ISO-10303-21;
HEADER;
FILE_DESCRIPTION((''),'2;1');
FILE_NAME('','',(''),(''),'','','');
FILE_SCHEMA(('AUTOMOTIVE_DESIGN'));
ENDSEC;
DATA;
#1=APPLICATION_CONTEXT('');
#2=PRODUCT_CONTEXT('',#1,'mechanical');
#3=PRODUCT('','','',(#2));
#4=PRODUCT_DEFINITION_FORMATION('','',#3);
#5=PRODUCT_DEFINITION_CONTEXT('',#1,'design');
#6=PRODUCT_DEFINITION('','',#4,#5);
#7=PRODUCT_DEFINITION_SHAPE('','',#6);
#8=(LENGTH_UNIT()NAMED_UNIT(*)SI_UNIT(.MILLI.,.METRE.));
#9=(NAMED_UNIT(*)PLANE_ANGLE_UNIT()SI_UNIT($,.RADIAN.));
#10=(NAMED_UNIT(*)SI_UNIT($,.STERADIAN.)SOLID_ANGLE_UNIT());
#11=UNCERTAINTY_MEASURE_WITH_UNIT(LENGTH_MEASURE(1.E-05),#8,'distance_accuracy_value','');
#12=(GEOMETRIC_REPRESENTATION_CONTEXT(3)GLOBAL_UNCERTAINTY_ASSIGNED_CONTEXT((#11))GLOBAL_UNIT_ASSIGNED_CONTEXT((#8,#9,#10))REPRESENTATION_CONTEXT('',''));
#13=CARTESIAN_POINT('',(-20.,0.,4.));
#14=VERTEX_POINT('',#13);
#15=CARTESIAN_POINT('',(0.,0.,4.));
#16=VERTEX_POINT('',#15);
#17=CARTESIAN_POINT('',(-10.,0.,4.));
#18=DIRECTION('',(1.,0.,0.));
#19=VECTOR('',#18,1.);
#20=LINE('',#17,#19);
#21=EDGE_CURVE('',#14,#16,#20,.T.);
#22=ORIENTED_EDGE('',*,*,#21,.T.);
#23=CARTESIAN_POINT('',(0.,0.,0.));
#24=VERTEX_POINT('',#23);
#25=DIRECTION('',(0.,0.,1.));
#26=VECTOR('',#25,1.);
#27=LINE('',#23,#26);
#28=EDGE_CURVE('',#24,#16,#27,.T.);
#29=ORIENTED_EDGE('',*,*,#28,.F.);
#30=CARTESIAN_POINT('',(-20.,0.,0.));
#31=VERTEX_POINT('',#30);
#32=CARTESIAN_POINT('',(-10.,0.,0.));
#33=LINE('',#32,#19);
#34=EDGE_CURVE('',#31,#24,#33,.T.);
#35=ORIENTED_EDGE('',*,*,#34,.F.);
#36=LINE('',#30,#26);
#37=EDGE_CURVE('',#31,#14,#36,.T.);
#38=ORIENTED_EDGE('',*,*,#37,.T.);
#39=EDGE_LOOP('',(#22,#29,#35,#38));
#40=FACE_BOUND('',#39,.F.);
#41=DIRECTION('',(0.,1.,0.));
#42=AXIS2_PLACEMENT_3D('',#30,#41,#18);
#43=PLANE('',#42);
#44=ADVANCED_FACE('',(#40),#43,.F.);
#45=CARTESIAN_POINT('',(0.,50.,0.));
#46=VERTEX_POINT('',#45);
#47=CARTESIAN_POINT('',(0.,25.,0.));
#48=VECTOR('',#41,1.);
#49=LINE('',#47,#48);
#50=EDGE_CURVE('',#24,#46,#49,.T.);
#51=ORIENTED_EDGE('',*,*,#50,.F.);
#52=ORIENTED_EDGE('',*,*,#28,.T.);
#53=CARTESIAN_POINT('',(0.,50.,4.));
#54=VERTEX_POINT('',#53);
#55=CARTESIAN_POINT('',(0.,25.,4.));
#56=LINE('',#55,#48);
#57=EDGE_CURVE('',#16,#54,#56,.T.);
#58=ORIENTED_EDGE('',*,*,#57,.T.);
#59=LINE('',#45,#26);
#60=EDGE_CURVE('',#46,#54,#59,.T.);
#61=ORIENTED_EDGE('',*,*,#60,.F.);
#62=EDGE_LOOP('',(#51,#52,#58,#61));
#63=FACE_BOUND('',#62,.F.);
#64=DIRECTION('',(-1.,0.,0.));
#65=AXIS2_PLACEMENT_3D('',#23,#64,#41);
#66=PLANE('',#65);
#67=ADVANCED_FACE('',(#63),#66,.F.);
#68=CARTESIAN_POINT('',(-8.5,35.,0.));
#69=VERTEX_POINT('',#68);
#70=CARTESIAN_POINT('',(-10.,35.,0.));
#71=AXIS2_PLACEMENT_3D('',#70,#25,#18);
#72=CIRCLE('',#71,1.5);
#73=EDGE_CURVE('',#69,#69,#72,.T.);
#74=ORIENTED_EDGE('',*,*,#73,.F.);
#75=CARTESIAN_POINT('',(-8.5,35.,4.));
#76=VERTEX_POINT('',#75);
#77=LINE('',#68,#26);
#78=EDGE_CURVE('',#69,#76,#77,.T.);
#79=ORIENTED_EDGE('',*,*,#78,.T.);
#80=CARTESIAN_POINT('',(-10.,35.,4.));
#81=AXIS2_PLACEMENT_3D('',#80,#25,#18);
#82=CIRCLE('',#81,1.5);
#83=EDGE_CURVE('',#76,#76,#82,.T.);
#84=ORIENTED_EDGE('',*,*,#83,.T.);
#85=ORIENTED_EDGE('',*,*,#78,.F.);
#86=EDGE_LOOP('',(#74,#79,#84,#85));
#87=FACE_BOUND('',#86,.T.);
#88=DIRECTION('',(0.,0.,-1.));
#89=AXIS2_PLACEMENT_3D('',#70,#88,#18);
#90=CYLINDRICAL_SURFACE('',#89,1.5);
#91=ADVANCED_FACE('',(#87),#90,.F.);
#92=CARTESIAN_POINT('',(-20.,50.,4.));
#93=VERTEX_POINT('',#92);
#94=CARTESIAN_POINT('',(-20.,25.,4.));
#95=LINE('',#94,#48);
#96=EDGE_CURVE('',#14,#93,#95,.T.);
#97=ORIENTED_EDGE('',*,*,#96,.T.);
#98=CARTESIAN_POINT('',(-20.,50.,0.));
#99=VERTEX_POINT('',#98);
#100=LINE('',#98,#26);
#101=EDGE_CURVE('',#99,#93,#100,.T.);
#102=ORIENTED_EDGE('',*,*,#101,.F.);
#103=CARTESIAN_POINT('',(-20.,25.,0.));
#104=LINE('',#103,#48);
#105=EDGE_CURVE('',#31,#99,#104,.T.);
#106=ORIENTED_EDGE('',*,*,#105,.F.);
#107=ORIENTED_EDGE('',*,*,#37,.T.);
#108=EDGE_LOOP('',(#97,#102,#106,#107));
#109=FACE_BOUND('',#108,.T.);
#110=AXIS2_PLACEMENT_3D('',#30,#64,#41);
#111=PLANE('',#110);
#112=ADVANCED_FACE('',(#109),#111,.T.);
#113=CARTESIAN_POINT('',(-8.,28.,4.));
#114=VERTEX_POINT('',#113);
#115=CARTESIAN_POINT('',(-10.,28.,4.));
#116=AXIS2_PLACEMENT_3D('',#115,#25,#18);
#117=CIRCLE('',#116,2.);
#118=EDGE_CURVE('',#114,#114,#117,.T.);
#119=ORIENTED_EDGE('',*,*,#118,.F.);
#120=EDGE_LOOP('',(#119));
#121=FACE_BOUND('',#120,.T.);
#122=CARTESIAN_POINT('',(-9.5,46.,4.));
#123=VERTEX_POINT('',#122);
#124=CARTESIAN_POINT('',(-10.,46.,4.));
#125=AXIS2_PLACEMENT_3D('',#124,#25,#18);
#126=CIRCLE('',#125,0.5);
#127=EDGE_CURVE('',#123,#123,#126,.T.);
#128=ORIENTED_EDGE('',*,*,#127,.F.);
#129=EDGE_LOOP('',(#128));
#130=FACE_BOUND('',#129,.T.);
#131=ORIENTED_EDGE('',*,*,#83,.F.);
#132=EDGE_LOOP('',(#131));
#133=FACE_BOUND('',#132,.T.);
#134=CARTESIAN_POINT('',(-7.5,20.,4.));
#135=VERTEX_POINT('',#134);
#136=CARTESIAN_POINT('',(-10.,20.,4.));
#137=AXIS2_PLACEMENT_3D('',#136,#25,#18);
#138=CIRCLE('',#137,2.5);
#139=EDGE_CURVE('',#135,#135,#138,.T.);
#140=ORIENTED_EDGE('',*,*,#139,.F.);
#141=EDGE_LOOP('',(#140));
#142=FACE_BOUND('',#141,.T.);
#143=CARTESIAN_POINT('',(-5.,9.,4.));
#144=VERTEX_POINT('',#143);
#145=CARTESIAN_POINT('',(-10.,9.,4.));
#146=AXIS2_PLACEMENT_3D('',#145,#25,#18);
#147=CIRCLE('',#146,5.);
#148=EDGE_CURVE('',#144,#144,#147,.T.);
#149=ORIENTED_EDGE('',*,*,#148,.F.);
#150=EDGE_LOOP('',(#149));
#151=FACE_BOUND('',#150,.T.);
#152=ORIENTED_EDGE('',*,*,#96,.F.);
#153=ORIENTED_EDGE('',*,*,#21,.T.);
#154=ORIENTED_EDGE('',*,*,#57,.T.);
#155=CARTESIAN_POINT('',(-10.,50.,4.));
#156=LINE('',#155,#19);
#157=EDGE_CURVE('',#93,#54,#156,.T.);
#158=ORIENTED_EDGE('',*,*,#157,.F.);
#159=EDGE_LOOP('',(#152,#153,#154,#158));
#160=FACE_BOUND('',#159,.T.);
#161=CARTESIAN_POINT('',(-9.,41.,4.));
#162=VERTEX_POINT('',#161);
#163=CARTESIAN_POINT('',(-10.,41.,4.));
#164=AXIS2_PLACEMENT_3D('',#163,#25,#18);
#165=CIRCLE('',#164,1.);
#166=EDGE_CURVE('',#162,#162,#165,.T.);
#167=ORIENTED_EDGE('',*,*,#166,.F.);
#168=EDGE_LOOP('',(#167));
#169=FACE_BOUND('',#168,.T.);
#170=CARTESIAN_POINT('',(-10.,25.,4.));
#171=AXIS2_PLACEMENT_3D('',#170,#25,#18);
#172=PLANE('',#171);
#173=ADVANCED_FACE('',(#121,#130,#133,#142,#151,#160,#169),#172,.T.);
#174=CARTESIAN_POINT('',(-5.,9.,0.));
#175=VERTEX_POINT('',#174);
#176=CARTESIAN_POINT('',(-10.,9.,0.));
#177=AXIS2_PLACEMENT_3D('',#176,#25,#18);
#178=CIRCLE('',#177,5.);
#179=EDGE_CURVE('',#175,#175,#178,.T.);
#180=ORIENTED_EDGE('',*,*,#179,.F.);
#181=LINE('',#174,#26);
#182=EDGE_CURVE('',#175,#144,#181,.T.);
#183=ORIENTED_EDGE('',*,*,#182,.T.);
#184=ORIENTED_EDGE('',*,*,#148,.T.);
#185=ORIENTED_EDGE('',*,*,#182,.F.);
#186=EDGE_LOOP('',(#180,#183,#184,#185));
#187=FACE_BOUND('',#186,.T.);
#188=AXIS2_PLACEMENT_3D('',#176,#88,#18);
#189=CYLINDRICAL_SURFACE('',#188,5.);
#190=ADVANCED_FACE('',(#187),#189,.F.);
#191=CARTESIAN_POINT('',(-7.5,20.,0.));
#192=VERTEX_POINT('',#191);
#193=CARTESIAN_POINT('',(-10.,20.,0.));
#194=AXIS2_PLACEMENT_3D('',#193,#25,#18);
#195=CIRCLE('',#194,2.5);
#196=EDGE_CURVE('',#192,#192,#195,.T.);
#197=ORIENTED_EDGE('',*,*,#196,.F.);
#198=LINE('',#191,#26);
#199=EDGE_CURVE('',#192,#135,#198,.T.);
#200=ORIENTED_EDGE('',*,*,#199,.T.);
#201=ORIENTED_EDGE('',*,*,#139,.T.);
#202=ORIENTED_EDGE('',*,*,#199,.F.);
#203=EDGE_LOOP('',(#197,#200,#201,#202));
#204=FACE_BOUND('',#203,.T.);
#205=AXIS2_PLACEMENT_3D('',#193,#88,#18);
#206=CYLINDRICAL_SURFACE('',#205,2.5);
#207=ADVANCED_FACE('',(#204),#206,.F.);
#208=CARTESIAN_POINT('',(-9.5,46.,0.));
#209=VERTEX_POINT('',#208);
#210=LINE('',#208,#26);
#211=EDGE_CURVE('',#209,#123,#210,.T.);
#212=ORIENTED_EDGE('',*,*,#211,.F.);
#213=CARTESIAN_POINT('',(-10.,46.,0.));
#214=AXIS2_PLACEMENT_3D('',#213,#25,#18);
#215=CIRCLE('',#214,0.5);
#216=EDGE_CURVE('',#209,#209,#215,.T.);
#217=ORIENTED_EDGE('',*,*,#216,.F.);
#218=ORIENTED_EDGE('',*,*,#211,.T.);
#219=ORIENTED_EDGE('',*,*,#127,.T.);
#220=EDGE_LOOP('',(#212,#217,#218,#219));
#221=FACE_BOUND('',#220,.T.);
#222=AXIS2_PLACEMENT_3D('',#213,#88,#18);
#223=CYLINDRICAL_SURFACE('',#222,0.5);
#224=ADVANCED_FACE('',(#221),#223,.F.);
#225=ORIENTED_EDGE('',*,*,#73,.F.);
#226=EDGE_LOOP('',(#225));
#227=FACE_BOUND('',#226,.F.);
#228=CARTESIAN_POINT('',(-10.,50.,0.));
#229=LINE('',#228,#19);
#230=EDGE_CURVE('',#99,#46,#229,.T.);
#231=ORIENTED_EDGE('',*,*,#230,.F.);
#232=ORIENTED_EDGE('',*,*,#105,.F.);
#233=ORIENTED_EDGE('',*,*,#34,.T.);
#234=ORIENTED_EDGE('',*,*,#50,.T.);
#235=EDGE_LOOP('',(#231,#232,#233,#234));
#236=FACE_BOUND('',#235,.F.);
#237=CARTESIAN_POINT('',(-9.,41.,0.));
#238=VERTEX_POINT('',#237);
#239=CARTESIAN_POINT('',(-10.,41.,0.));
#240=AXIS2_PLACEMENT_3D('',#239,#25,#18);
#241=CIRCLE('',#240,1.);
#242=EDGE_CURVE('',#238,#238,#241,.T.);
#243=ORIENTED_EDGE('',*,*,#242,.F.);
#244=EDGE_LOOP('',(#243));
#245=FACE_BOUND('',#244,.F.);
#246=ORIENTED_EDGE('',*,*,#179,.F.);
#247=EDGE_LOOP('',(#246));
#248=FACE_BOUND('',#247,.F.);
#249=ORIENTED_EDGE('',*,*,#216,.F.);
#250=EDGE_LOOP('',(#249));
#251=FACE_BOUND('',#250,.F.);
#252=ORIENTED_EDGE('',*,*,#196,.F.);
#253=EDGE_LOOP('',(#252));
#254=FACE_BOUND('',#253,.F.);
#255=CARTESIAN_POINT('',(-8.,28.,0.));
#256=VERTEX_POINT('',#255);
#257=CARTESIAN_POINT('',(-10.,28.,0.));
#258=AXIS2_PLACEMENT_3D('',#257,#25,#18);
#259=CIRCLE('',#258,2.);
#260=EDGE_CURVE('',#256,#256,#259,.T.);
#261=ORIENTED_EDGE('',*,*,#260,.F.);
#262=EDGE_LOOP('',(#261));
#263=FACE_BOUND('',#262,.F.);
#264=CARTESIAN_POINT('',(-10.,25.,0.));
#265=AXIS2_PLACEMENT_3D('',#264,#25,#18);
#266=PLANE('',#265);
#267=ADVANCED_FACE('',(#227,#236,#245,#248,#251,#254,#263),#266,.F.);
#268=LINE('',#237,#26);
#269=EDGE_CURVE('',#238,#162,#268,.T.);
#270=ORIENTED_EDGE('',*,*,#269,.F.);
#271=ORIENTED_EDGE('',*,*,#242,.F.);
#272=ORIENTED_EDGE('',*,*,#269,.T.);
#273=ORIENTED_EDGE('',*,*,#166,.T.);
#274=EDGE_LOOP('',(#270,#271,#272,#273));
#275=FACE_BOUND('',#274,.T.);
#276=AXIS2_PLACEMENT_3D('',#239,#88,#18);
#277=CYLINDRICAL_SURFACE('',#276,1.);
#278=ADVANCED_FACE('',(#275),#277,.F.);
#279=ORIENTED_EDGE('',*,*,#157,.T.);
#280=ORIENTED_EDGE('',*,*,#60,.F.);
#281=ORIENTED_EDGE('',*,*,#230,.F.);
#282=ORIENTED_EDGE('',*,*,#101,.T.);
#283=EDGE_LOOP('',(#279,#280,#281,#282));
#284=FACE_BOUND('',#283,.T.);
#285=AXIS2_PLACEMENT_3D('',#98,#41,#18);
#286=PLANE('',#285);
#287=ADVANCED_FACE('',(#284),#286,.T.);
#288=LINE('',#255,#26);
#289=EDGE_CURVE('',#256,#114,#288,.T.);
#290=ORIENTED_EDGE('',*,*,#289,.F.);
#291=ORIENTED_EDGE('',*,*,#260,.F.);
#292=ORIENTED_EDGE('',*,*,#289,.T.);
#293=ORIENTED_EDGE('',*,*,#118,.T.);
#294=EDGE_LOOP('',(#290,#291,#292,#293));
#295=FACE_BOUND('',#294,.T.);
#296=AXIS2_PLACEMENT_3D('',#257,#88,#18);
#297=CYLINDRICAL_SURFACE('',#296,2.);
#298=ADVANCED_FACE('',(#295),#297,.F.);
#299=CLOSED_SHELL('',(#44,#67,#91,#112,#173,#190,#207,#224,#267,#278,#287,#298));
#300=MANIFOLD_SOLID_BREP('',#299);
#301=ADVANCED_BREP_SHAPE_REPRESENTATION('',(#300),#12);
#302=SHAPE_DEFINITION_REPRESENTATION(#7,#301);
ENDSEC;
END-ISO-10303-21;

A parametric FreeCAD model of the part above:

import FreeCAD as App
import Part
import Sketcher
Q = App.Units.Quantity

doc = App.newDocument("Part")
body = doc.addObject("PartDesign::Body", "Body")

# Sketch on XY plane
sketch1 = body.newObject("Sketcher::SketchObject", "Sketch")
sketch1.AttachmentSupport = (doc.getObject("XY_Plane"), [""])
sketch1.MapMode = "FlatFace"
sketch1.addGeometry([
    Part.LineSegment(App.Vector(-20, 50, 0), App.Vector(-20, 0, 0)),  # 0
    Part.LineSegment(App.Vector(-20, 0, 0), App.Vector(0, 0, 0)),  # 1
    Part.LineSegment(App.Vector(0, 0, 0), App.Vector(0, 50, 0)),  # 2
    Part.LineSegment(App.Vector(0, 50, 0), App.Vector(-20, 50, 0)),  # 3
    Part.Circle(App.Vector(-10, 9, 0), App.Vector(0, 0, 1), 5),  # 4
    Part.Circle(App.Vector(-10, 20, 0), App.Vector(0, 0, 1), 2.5),  # 5
    Part.Circle(App.Vector(-10, 28, 0), App.Vector(0, 0, 1), 2),  # 6
    Part.Circle(App.Vector(-10, 35, 0), App.Vector(0, 0, 1), 1.5),  # 7
    Part.Circle(App.Vector(-10, 41, 0), App.Vector(0, 0, 1), 1),  # 8
    Part.Circle(App.Vector(-10, 46, 0), App.Vector(0, 0, 1), 0.5),  # 9
], False)
sketch1.addConstraint([
    Sketcher.Constraint("Coincident", 0, 2, 1, 1),
    Sketcher.Constraint("Coincident", 1, 2, 2, 1),
    Sketcher.Constraint("Coincident", 2, 2, 3, 1),
    Sketcher.Constraint("Coincident", 3, 2, 0, 1),
    Sketcher.Constraint("Vertical", 0),
    Sketcher.Constraint("Horizontal", 1),
    Sketcher.Constraint("Vertical", 2),
    Sketcher.Constraint("Horizontal", 3),
    Sketcher.Constraint("Coincident", 1, 2, -1, 1),
    Sketcher.Constraint("Vertical", 4, 3, 5, 3),
    Sketcher.Constraint("Vertical", 5, 3, 6, 3),
    Sketcher.Constraint("Vertical", 6, 3, 7, 3),
    Sketcher.Constraint("Vertical", 7, 3, 8, 3),
    Sketcher.Constraint("Vertical", 8, 3, 9, 3),
    Sketcher.Constraint("Diameter", 4, Q("10 mm")),
    Sketcher.Constraint("Diameter", 5, Q("5 mm")),
    Sketcher.Constraint("Diameter", 6, Q("4 mm")),
    Sketcher.Constraint("Diameter", 7, Q("3 mm")),
    Sketcher.Constraint("Diameter", 8, Q("2 mm")),
    Sketcher.Constraint("Diameter", 9, Q("1 mm")),
    Sketcher.Constraint("DistanceX", 1, 1, 1, 2, Q("20 mm")),
    Sketcher.Constraint("DistanceY", 0, 2, 0, 1, Q("50 mm")),
    Sketcher.Constraint("DistanceX", 4, 3, -1, 1, Q("10 mm")),
    Sketcher.Constraint("DistanceY", -1, 1, 4, 3, Q("9 mm")),
    Sketcher.Constraint("DistanceY", -1, 1, 5, 3, Q("20 mm")),
    Sketcher.Constraint("DistanceY", -1, 1, 6, 3, Q("28 mm")),
    Sketcher.Constraint("DistanceY", -1, 1, 7, 3, Q("35 mm")),
    Sketcher.Constraint("DistanceY", -1, 1, 8, 3, Q("41 mm")),
    Sketcher.Constraint("DistanceY", -1, 1, 9, 3, Q("46 mm")),
])
pad1 = body.newObject("PartDesign::Pad", "Pad")
pad1.Profile = sketch1
pad1.Length = 4

doc.recompute()
